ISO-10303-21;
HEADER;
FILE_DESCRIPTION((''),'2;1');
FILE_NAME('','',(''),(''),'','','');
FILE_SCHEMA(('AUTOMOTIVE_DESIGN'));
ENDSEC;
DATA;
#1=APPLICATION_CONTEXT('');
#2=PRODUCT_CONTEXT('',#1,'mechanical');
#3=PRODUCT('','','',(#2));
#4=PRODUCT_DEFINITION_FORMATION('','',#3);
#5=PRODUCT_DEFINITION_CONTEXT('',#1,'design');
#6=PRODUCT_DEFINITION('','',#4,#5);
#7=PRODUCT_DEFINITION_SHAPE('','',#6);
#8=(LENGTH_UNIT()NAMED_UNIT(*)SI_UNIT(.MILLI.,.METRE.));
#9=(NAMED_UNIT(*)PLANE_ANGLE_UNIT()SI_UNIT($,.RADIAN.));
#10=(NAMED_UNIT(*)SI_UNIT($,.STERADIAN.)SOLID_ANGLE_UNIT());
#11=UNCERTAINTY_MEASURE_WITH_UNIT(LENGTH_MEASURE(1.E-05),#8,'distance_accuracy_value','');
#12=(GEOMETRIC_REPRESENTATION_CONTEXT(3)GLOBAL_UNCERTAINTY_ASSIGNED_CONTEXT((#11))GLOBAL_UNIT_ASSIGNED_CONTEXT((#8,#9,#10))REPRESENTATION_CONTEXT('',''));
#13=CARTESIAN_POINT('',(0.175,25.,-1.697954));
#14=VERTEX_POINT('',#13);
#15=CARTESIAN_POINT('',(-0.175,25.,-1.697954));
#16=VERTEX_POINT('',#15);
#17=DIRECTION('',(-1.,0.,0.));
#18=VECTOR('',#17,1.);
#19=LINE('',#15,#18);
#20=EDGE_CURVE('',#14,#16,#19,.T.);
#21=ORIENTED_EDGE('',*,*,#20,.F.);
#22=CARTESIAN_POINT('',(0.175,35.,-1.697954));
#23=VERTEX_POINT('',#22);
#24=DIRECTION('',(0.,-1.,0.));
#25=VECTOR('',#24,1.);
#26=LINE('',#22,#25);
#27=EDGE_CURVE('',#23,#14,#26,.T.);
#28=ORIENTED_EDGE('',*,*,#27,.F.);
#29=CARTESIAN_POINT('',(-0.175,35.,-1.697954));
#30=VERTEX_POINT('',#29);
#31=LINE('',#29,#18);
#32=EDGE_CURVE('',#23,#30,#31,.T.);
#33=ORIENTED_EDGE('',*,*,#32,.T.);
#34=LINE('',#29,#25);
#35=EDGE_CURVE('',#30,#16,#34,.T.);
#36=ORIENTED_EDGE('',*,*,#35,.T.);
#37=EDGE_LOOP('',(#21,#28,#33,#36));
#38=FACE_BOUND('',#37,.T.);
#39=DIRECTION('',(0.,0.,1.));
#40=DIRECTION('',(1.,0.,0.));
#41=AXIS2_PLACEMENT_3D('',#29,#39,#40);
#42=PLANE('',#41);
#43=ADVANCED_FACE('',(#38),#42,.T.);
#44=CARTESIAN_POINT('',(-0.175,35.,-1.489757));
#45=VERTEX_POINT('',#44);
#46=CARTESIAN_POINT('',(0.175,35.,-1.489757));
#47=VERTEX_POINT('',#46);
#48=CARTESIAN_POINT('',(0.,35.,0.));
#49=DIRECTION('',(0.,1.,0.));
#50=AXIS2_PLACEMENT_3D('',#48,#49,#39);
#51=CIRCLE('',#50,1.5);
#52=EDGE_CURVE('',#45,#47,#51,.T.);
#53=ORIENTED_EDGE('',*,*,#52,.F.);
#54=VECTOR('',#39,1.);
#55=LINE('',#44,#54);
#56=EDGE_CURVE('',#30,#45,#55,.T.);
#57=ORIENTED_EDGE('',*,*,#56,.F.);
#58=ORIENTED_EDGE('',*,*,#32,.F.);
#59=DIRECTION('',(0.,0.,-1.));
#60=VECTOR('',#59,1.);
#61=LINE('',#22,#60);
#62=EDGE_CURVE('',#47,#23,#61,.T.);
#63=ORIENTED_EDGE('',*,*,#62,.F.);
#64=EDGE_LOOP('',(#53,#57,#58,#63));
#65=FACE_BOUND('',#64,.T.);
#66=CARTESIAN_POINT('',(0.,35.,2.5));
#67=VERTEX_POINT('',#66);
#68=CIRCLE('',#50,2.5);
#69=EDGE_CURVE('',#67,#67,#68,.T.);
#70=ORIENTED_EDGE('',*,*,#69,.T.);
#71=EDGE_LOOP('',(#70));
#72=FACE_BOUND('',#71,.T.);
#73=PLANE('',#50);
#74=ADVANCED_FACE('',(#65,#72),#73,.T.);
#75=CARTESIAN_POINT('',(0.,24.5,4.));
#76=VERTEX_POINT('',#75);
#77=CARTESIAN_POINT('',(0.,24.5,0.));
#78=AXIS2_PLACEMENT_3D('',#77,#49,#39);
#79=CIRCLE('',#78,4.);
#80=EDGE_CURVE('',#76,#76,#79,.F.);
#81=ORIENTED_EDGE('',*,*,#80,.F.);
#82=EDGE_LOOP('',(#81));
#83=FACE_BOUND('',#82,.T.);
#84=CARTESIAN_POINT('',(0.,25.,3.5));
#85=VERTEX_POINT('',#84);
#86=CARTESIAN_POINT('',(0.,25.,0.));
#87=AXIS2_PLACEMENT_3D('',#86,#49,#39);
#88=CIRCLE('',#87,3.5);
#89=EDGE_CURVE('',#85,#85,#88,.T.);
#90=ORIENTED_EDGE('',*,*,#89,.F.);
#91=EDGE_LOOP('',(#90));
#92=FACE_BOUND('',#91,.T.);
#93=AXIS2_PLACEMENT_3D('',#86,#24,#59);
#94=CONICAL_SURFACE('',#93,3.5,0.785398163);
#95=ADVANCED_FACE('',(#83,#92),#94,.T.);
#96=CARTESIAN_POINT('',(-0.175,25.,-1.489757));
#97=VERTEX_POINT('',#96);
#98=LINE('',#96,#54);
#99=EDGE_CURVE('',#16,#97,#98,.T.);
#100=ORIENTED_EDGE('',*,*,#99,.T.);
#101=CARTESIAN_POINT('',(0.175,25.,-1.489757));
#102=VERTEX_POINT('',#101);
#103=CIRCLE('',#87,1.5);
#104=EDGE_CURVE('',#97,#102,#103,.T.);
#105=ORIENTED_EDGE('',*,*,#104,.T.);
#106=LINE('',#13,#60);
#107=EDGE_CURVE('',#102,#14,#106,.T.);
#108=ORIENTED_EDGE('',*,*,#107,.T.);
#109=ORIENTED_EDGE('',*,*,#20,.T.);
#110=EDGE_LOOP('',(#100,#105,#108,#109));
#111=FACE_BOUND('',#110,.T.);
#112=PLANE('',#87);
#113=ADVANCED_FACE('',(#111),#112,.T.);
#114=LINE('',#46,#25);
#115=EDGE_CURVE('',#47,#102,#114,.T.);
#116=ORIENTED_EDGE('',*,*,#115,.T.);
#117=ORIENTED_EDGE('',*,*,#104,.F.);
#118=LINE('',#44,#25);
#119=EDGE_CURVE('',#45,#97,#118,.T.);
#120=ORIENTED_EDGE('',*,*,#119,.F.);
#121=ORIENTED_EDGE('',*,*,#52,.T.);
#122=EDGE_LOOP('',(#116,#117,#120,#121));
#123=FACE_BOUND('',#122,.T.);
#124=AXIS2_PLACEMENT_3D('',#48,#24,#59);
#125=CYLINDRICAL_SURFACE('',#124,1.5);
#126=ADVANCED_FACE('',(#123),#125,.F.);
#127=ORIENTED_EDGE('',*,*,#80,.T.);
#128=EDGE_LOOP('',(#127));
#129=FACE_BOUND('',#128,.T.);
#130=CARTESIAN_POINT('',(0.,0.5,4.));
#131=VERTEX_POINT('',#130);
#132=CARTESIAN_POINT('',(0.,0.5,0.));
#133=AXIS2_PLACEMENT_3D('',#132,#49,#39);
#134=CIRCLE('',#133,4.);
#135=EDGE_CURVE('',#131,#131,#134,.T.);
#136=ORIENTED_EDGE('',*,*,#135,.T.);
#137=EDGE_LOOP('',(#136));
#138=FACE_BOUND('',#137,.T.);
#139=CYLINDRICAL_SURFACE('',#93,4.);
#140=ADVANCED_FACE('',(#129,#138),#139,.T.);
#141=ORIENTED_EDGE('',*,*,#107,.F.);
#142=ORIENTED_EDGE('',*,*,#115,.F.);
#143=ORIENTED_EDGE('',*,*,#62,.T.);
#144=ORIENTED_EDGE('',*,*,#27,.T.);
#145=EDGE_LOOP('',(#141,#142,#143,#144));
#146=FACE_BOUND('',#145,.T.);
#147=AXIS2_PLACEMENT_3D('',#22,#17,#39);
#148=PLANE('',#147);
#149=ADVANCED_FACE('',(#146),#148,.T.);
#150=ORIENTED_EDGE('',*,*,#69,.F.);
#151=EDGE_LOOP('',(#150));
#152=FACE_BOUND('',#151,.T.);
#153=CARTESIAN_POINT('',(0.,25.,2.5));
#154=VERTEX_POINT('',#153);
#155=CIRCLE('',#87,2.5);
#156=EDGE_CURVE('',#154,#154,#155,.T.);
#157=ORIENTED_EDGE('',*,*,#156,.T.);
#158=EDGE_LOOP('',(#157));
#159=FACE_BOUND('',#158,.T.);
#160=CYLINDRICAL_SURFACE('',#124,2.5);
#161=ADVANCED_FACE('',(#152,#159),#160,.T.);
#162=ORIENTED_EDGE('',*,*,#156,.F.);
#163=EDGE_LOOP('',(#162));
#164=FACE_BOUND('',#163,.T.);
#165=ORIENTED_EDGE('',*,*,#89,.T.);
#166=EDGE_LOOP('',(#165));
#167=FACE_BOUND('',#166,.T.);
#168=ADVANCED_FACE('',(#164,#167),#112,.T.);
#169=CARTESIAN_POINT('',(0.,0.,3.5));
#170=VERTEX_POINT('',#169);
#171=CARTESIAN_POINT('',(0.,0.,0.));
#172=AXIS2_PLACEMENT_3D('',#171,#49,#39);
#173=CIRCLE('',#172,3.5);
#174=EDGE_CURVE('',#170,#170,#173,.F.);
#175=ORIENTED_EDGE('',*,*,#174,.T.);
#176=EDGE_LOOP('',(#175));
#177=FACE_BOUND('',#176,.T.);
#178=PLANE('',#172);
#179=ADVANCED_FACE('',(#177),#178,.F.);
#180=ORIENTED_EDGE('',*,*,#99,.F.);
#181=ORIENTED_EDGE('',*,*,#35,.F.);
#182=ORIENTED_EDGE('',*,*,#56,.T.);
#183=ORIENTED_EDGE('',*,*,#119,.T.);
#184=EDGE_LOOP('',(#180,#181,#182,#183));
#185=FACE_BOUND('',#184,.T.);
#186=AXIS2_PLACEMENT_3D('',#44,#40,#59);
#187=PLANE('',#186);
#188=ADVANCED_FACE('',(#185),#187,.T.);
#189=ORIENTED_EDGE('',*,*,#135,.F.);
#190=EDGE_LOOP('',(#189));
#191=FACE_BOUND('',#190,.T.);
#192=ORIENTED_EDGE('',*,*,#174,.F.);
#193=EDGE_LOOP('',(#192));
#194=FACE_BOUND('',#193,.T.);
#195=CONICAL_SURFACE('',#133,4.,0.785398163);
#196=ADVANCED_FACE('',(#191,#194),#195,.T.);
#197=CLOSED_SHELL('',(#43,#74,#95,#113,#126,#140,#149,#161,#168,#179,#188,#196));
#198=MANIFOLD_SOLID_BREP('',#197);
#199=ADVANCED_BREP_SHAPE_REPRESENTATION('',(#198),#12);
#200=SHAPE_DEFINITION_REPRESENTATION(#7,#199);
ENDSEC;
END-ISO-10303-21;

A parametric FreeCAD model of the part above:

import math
import FreeCAD as App
import Part
import Sketcher

V = App.Vector
Q = App.Units.Quantity


def edges_at(feature, points):
    """Names of the edges that pass closest to the given points."""
    edges = feature.Shape.Edges
    near = lambda p: min(range(len(edges)), key=lambda i: edges[i].distToShape(Part.Vertex(*p))[0])
    return sorted({f"Edge{near(p) + 1}" for p in points})

doc = App.newDocument("Part")
body = doc.addObject("PartDesign::Body", "Body")

sketch1 = doc.addObject("Sketcher::SketchObject", "Sketch")
body.addObject(sketch1)
sketch1.AttachmentSupport = (doc.XZ_Plane, [""])
sketch1.MapMode = "FlatFace"
sketch1.addGeometry(Part.Circle(V(0, 0, 0), V(0, 0, 1), 4), False)
sketch1.addConstraint([
    Sketcher.Constraint("Coincident", 0, 3, -1, 1),
    Sketcher.Constraint("Diameter", 0, Q("8 mm")),
])
pad1 = doc.addObject("PartDesign::Pad", "Pad")
body.addObject(pad1)
pad1.Profile = sketch1
pad1.Length = 25
pad1.Reversed = True

sketch2 = doc.addObject("Sketcher::SketchObject", "Sketch001")
body.addObject(sketch2)
sketch2.AttachmentSupport = (doc.XZ_Plane, [""])
sketch2.MapMode = "FlatFace"
sketch2.AttachmentOffset = App.Placement(V(0, 0, -25), App.Rotation())
sketch2.addGeometry([
    Part.Circle(V(0, 0, 0), V(0, 0, 1), 2.5),
    Part.ArcOfCircle(Part.Circle(V(0, 0, 0), V(0, 0, 1), 1.5), math.radians(-83.300235), math.radians(263.300235)),
    Part.LineSegment(V(-0.175, -1.489757, 0), V(-0.175, -1.697954, 0)),
    Part.LineSegment(V(-0.175, -1.697954, 0), V(0.175, -1.697954, 0)),
    Part.LineSegment(V(0.175, -1.697954, 0), V(0.175, -1.489757, 0)),
], False)
sketch2.addConstraint([
    Sketcher.Constraint("Coincident", 1, 2, 2, 1),
    Sketcher.Constraint("Coincident", 2, 2, 3, 1),
    Sketcher.Constraint("Coincident", 3, 2, 4, 1),
    Sketcher.Constraint("Coincident", 4, 2, 1, 1),
    Sketcher.Constraint("Vertical", 2),
    Sketcher.Constraint("Horizontal", 3),
    Sketcher.Constraint("Vertical", 4),
    Sketcher.Constraint("Coincident", 0, 3, -1, 1),
    Sketcher.Constraint("Coincident", 1, 3, -1, 1),
    Sketcher.Constraint("Horizontal", 1, 2, 4, 2),
    Sketcher.Constraint("Diameter", 0, Q("5 mm")),
    Sketcher.Constraint("Radius", 1, Q("1.5 mm")),
    Sketcher.Constraint("DistanceX", 3, 1, 3, 2, Q("0.35 mm")),
    Sketcher.Constraint("DistanceY", 2, 2, 2, 1, Q("0.208197 mm")),
])
pad2 = doc.addObject("PartDesign::Pad", "Pad001")
body.addObject(pad2)
pad2.Profile = sketch2
pad2.Length = 10
pad2.Reversed = True
doc.recompute()

chamfer = doc.addObject("PartDesign::Chamfer", "Chamfer")
body.addObject(chamfer)
chamfer.Base = (pad2, edges_at(pad2, [(0, 25, -4)]))
chamfer.Size = 0.5
doc.recompute()

chamfer2 = doc.addObject("PartDesign::Chamfer", "Chamfer001")
body.addObject(chamfer2)
chamfer2.Base = (chamfer, edges_at(chamfer, [(0, 0, -4)]))
chamfer2.Size = 0.5

doc.recompute()
